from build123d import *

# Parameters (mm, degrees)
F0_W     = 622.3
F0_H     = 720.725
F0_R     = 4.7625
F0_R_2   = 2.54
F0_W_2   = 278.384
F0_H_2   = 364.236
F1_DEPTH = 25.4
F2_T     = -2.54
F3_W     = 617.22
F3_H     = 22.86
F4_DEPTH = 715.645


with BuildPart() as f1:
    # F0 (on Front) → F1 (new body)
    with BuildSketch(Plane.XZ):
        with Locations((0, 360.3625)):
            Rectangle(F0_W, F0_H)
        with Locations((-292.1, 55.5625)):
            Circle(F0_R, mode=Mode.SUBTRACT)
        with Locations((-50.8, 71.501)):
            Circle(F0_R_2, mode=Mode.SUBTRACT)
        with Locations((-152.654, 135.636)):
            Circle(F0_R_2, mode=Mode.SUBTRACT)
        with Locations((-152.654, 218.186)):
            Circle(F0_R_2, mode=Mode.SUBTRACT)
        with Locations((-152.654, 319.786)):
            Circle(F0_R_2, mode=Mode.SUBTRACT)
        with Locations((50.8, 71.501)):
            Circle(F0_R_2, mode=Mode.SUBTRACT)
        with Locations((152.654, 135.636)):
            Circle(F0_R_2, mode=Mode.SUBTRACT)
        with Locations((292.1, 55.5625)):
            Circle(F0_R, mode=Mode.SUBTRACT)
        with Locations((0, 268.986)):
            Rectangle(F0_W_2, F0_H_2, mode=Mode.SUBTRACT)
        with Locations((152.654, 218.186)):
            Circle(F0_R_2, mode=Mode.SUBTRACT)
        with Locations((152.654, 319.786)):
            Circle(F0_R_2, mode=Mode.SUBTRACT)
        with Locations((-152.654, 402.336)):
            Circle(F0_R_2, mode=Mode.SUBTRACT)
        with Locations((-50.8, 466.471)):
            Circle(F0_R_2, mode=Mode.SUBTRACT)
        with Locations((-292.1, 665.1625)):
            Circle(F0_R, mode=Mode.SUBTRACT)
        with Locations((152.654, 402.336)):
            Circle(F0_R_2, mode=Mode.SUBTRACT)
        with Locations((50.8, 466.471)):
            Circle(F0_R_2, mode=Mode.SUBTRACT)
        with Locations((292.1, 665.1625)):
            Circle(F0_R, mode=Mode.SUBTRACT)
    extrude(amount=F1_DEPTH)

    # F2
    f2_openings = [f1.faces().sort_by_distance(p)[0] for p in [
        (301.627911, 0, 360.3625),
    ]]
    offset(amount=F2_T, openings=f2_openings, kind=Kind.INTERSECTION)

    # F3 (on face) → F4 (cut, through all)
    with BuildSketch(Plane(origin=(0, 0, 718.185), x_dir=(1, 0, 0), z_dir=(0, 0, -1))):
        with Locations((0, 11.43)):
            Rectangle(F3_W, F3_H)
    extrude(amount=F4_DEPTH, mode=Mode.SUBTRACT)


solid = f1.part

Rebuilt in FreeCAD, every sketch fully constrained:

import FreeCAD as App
import Part
import Sketcher

V = App.Vector
Q = App.Units.Quantity


def faces_at(feature, points):
    """Names of the faces that lie closest to the given points."""
    faces = feature.Shape.Faces
    near = lambda p: min(range(len(faces)), key=lambda i: faces[i].distToShape(Part.Vertex(*p))[0])
    return sorted({f"Face{near(p) + 1}" for p in points})


def add_polygon(sketch, points):
    """Adds a closed chain of lines whose ends are joined by coincident constraints."""
    first, n = sketch.GeometryCount, len(points)
    for a, b in zip(points, points[1:] + points[:1]):
        sketch.addGeometry(Part.LineSegment(App.Vector(*a, 0), App.Vector(*b, 0)), False)
    for i in range(n):
        sketch.addConstraint(Sketcher.Constraint("Coincident", first + i, 2, first + (i + 1) % n, 1))

doc = App.newDocument("Part")
body = doc.addObject("PartDesign::Body", "Body")

# Sketch on XZ plane
sketch1 = body.newObject("Sketcher::SketchObject", "Sketch")
sketch1.AttachmentSupport = (doc.getObject("XZ_Plane"), [""])
sketch1.MapMode = "FlatFace"
add_polygon(sketch1, [(-311.1, 720.7), (-311.1, 0), (311.1, 0), (311.1, 720.7)])  # lines 0-3
sketch1.addGeometry(Part.Circle(V(-292.1, 55.6, 0), V(0, 0, 1), 4.8), False)  # 4
sketch1.addGeometry(Part.Circle(V(-152.7, 135.6, 0), V(0, 0, 1), 2.5), False)  # 5
sketch1.addGeometry(Part.Circle(V(-50.8, 71.5, 0), V(0, 0, 1), 2.5), False)  # 6
sketch1.addGeometry(Part.Circle(V(-152.7, 218.2, 0), V(0, 0, 1), 2.5), False)  # 7
sketch1.addGeometry(Part.Circle(V(-152.7, 319.8, 0), V(0, 0, 1), 2.5), False)  # 8
sketch1.addGeometry(Part.Circle(V(50.8, 71.5, 0), V(0, 0, 1), 2.5), False)  # 9
sketch1.addGeometry(Part.Circle(V(292.1, 55.6, 0), V(0, 0, 1), 4.8), False)  # 10
sketch1.addGeometry(Part.Circle(V(152.7, 135.6, 0), V(0, 0, 1), 2.5), False)  # 11
add_polygon(sketch1, [(139.2, 86.9), (-139.2, 86.9), (-139.2, 451.1), (139.2, 451.1)])  # lines 12-15
sketch1.addGeometry(Part.Circle(V(152.7, 218.2, 0), V(0, 0, 1), 2.5), False)  # 16
sketch1.addGeometry(Part.Circle(V(152.7, 319.8, 0), V(0, 0, 1), 2.5), False)  # 17
sketch1.addGeometry(Part.Circle(V(-152.7, 402.3, 0), V(0, 0, 1), 2.5), False)  # 18
sketch1.addGeometry(Part.Circle(V(-50.8, 466.5, 0), V(0, 0, 1), 2.5), False)  # 19
sketch1.addGeometry(Part.Circle(V(-292.1, 665.2, 0), V(0, 0, 1), 4.8), False)  # 20
sketch1.addGeometry(Part.Circle(V(50.8, 466.5, 0), V(0, 0, 1), 2.5), False)  # 21
sketch1.addGeometry(Part.Circle(V(152.7, 402.3, 0), V(0, 0, 1), 2.5), False)  # 22
sketch1.addGeometry(Part.Circle(V(292.1, 665.2, 0), V(0, 0, 1), 4.8), False)  # 23
sketch1.addConstraint([
    Sketcher.Constraint("Vertical", 0),
    Sketcher.Constraint("Horizontal", 1),
    Sketcher.Constraint("Vertical", 2),
    Sketcher.Constraint("Horizontal", 3),
    Sketcher.Constraint("Horizontal", 12),
    Sketcher.Constraint("Vertical", 13),
    Sketcher.Constraint("Horizontal", 14),
    Sketcher.Constraint("Vertical", 15),
    Sketcher.Constraint("Equal", 5, 6),
    Sketcher.Constraint("Equal", 6, 7),
    Sketcher.Constraint("Equal", 7, 8),
    Sketcher.Constraint("Equal", 8, 9),
    Sketcher.Constraint("Equal", 4, 10),
    Sketcher.Constraint("Equal", 9, 11),
    Sketcher.Constraint("Equal", 11, 16),
    Sketcher.Constraint("Equal", 16, 17),
    Sketcher.Constraint("Equal", 17, 18),
    Sketcher.Constraint("Equal", 18, 19),
    Sketcher.Constraint("Equal", 10, 20),
    Sketcher.Constraint("Equal", 19, 21),
    Sketcher.Constraint("Equal", 21, 22),
    Sketcher.Constraint("Equal", 20, 23),
    Sketcher.Constraint("Symmetric", 0, 2, 1, 2, -1, 1),
    Sketcher.Constraint("Symmetric", 6, 3, 9, 3, -2),
    Sketcher.Constraint("Symmetric", 4, 3, 10, 3, -2),
    Sketcher.Constraint("Symmetric", 5, 3, 11, 3, -2),
    Sketcher.Constraint("Symmetric", 7, 3, 16, 3, -2),
    Sketcher.Constraint("Symmetric", 8, 3, 17, 3, -2),
    Sketcher.Constraint("Symmetric", 19, 3, 21, 3, -2),
    Sketcher.Constraint("Symmetric", 18, 3, 22, 3, -2),
    Sketcher.Constraint("Symmetric", 20, 3, 23, 3, -2),
    Sketcher.Constraint("Vertical", 5, 3, 7, 3),
    Sketcher.Constraint("Vertical", 7, 3, 8, 3),
    Sketcher.Constraint("Vertical", 8, 3, 18, 3),
    Sketcher.Constraint("Vertical", 6, 3, 19, 3),
    Sketcher.Constraint("Vertical", 4, 3, 20, 3),
    Sketcher.Constraint("Diameter", 5, Q("0.2 in")),
    Sketcher.Constraint("Diameter", 4, Q("0.375 in")),
    Sketcher.Constraint("DistanceX", 1, 1, 1, 2, Q("24.5 in")),
    Sketcher.Constraint("DistanceX", 6, 3, -1, 1, Q("2 in")),
    Sketcher.Constraint("DistanceY", 7, 3, 8, 3, Q("4 in")),
    Sketcher.Constraint("DistanceX", 12, 2, 12, 1, Q("10.96 in")),
    Sketcher.Constraint("DistanceY", 13, 1, 13, 2, Q("14.34 in")),
    Sketcher.Constraint("DistanceX", 4, 3, -1, 1, Q("11.5 in")),
    Sketcher.Constraint("DistanceY", 5, 3, 18, 3, Q("10.5 in")),
    Sketcher.Constraint("DistanceY", 0, 2, 0, 1, Q("28.375 in")),
    Sketcher.Constraint("DistanceX", 5, 3, -1, 1, Q("6.01 in")),
    Sketcher.Constraint("DistanceY", -1, 1, 5, 3, Q("5.34 in")),
    Sketcher.Constraint("DistanceY", -1, 1, 7, 3, Q("8.59 in")),
    Sketcher.Constraint("DistanceX", 12, 2, -1, 1, Q("5.48 in")),
    Sketcher.Constraint("DistanceY", -1, 1, 12, 2, Q("3.42 in")),
    Sketcher.Constraint("DistanceY", 21, 3, 2, 2, Q("10.01 in")),
    Sketcher.Constraint("DistanceY", -1, 1, 4, 3, Q("2.1875 in")),
    Sketcher.Constraint("DistanceY", -1, 1, 6, 3, Q("2.815 in")),
    Sketcher.Constraint("DistanceY", -1, 1, 20, 3, Q("26.1875 in")),
])
pad1 = body.newObject("PartDesign::Pad", "Pad")
pad1.Profile = sketch1
pad1.Length = Q("1 in")
doc.recompute()

thickness = body.newObject("PartDesign::Thickness", "Thickness")
thickness.Base = (pad1, faces_at(pad1, [(-248.92, 0, 360.363)]))
thickness.Value = Q("0.1 in")
thickness.Reversed = True
thickness.Join = "Intersection"

# Sketch on XY plane
sketch2 = body.newObject("Sketcher::SketchObject", "Sketch001")
sketch2.AttachmentSupport = (doc.getObject("XY_Plane"), [""])
sketch2.MapMode = "FlatFace"
sketch2.AttachmentOffset = App.Placement(V(0, 0, 28.275 * 25.4), App.Rotation())
add_polygon(sketch2, [(-309, -23), (-309, 0), (309, 0), (309, -23)])  # lines 0-3
sketch2.addConstraint([
    Sketcher.Constraint("Vertical", 0),
    Sketcher.Constraint("Horizontal", 1),
    Sketcher.Constraint("Vertical", 2),
    Sketcher.Constraint("Horizontal", 3),
    Sketcher.Constraint("Symmetric", 0, 2, 1, 2, -1, 1),
    Sketcher.Constraint("DistanceX", 1, 1, 1, 2, Q("24.3 in")),
    Sketcher.Constraint("DistanceY", 0, 1, 0, 2, Q("0.9 in")),
])
pocket1 = body.newObject("PartDesign::Pocket", "Pocket")
pocket1.Profile = sketch2
pocket1.Length = Q("28.175 in")

doc.recompute()
